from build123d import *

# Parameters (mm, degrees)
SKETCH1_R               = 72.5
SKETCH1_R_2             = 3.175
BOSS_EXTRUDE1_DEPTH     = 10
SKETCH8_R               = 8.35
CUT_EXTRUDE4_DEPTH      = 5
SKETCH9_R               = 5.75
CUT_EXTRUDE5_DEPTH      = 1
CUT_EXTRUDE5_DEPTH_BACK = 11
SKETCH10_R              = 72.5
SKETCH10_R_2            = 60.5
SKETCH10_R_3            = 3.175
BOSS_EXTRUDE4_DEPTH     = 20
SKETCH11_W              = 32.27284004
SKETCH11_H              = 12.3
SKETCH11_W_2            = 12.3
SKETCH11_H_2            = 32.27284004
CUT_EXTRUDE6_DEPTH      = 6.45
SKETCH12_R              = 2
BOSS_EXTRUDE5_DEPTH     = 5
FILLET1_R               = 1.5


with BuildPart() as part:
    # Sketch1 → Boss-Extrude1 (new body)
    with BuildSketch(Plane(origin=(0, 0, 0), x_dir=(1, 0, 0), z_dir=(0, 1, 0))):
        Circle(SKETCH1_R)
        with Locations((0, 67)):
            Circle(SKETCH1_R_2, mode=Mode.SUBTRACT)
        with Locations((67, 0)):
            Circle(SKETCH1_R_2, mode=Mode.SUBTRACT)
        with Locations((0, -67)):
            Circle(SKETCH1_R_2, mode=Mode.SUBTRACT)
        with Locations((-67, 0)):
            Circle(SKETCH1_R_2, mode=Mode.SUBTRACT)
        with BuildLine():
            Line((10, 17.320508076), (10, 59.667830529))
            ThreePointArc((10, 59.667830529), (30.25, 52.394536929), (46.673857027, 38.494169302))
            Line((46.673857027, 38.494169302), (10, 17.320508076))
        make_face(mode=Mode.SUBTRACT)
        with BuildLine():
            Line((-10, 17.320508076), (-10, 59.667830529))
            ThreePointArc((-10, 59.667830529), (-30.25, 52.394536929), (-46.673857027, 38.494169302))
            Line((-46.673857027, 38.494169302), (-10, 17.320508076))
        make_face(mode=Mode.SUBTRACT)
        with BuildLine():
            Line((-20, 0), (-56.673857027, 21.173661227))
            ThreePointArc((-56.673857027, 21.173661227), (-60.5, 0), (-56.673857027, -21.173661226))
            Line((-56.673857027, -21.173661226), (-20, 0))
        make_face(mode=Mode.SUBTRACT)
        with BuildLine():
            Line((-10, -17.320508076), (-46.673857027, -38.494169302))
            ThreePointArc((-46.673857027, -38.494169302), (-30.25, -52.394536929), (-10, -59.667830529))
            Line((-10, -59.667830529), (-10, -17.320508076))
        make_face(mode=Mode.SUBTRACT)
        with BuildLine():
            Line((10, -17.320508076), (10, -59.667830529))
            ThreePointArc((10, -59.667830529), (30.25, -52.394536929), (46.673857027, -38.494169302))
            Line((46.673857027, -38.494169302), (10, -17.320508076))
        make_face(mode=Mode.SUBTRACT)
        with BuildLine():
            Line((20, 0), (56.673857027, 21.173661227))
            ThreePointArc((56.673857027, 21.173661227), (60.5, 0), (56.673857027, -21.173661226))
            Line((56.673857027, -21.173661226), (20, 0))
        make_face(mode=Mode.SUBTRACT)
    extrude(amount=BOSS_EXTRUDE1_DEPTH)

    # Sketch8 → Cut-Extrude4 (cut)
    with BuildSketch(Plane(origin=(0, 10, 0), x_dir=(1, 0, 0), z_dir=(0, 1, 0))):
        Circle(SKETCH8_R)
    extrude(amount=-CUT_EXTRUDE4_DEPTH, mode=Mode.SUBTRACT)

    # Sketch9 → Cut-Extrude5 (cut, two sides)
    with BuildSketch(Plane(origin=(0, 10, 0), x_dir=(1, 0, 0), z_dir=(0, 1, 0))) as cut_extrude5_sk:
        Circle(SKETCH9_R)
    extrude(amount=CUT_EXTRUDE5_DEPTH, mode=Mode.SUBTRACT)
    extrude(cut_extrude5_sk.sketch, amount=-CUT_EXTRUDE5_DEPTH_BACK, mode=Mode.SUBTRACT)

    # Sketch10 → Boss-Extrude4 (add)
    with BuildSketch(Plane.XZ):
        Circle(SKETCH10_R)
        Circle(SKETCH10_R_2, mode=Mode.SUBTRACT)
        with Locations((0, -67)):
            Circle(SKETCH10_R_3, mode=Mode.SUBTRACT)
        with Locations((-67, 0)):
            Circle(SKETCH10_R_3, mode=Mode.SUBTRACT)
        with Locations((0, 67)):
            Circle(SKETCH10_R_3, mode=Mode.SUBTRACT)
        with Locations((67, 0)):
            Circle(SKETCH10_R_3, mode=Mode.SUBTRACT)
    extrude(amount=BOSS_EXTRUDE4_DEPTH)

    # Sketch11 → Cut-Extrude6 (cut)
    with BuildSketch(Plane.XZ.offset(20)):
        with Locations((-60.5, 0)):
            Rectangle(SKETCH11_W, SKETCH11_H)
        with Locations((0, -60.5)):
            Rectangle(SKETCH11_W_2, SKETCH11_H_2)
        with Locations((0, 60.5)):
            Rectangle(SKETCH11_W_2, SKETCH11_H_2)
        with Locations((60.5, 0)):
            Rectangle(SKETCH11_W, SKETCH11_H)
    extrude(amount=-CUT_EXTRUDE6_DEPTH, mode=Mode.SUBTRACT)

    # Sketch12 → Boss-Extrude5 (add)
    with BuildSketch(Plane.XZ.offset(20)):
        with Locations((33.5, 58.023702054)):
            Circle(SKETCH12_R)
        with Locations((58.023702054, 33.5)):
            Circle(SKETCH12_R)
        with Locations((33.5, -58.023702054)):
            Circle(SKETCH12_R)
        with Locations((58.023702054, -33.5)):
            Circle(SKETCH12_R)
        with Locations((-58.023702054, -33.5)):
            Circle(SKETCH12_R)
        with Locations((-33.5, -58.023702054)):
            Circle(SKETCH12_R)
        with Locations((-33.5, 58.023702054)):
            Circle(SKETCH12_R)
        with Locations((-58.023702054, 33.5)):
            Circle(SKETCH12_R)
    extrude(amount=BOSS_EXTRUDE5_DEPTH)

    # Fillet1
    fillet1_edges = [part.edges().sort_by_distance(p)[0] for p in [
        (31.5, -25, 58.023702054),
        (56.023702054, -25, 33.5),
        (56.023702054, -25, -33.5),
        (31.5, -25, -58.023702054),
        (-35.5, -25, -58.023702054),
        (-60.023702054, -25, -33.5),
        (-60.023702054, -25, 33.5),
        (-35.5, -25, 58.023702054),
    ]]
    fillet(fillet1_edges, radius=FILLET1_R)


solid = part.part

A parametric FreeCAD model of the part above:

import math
import FreeCAD as App
import Part
import Sketcher
from FreeCAD import Vector
Q = App.Units.Quantity


def edges_at(feature, points):
    """Names of the edges that pass closest to the given points."""
    edges = feature.Shape.Edges
    near = lambda p: min(range(len(edges)), key=lambda i: edges[i].distToShape(Part.Vertex(*p))[0])
    return sorted({f"Edge{near(p) + 1}" for p in points})


def add_polygon(sketch, points):
    """Adds a closed chain of lines whose ends are joined by coincident constraints."""
    first, n = sketch.GeometryCount, len(points)
    for a, b in zip(points, points[1:] + points[:1]):
        sketch.addGeometry(Part.LineSegment(App.Vector(*a, 0), App.Vector(*b, 0)), False)
    for i in range(n):
        sketch.addConstraint(Sketcher.Constraint("Coincident", first + i, 2, first + (i + 1) % n, 1))

doc = App.newDocument("Part")
body = doc.addObject("PartDesign::Body", "Body")

sketch1 = body.newObject("Sketcher::SketchObject", "Sketch")
sketch1.AttachmentSupport = (doc.getObject("XZ_Plane"), [""])
sketch1.MapMode = "FlatFace"
sketch1.addGeometry([
    Part.Circle(Vector(0, 0, 0), Vector(0, 0, 1), 72.5),
    Part.LineSegment(Vector(-46.7, 38.5, 0), Vector(-10, 17.3, 0)),
    Part.LineSegment(Vector(-10, 17.3, 0), Vector(-10, 59.7, 0)),
    Part.ArcOfCircle(Part.Circle(Vector(0, 0, 0), Vector(0, 0, 1), 60.5), math.radians(100), math.radians(140)),
    Part.Circle(Vector(0, 67, 0), Vector(0, 0, 1), 3.2),
    Part.LineSegment(Vector(10, 59.7, 0), Vector(10, 17.3, 0)),
    Part.LineSegment(Vector(10, 17.3, 0), Vector(46.7, 38.5, 0)),
    Part.ArcOfCircle(Part.Circle(Vector(0, 0, 0), Vector(0, 0, 1), 60.5), math.radians(40), math.radians(80)),
    Part.Circle(Vector(-67, 0, 0), Vector(0, 0, 1), 3.2),
    Part.LineSegment(Vector(-56.7, -21.2, 0), Vector(-20, 0, 0)),
    Part.LineSegment(Vector(-20, 0, 0), Vector(-56.7, 21.2, 0)),
    Part.ArcOfCircle(Part.Circle(Vector(0, 0, 0), Vector(0, 0, 1), 60.5), math.radians(160), math.radians(200)),
    Part.LineSegment(Vector(-10, -59.7, 0), Vector(-10, -17.3, 0)),
    Part.LineSegment(Vector(-10, -17.3, 0), Vector(-46.7, -38.5, 0)),
    Part.ArcOfCircle(Part.Circle(Vector(0, 0, 0), Vector(0, 0, 1), 60.5), math.radians(-140), math.radians(-100)),
    Part.LineSegment(Vector(56.7, 21.2, 0), Vector(20, 0, 0)),
    Part.LineSegment(Vector(20, 0, 0), Vector(56.7, -21.2, 0)),
    Part.ArcOfCircle(Part.Circle(Vector(0, 0, 0), Vector(0, 0, 1), 60.5), math.radians(-20), math.radians(20)),
    Part.Circle(Vector(67, 0, 0), Vector(0, 0, 1), 3.2),
    Part.LineSegment(Vector(46.7, -38.5, 0), Vector(10, -17.3, 0)),
    Part.LineSegment(Vector(10, -17.3, 0), Vector(10, -59.7, 0)),
    Part.ArcOfCircle(Part.Circle(Vector(0, 0, 0), Vector(0, 0, 1), 60.5), math.radians(-80), math.radians(-40)),
    Part.Circle(Vector(0, -67, 0), Vector(0, 0, 1), 3.2),
], False)
sketch1.addConstraint([
    Sketcher.Constraint("Coincident", 1, 2, 2, 1),
    Sketcher.Constraint("Coincident", 2, 2, 3, 1),
    Sketcher.Constraint("Coincident", 3, 2, 1, 1),
    Sketcher.Constraint("Coincident", 5, 2, 6, 1),
    Sketcher.Constraint("Coincident", 6, 2, 7, 1),
    Sketcher.Constraint("Coincident", 7, 2, 5, 1),
    Sketcher.Constraint("Coincident", 9, 2, 10, 1),
    Sketcher.Constraint("Coincident", 10, 2, 11, 1),
    Sketcher.Constraint("Coincident", 11, 2, 9, 1),
    Sketcher.Constraint("Coincident", 12, 2, 13, 1),
    Sketcher.Constraint("Coincident", 13, 2, 14, 1),
    Sketcher.Constraint("Coincident", 14, 2, 12, 1),
    Sketcher.Constraint("Coincident", 15, 2, 16, 1),
    Sketcher.Constraint("Coincident", 16, 2, 17, 1),
    Sketcher.Constraint("Coincident", 17, 2, 15, 1),
    Sketcher.Constraint("Coincident", 19, 2, 20, 1),
    Sketcher.Constraint("Coincident", 20, 2, 21, 1),
    Sketcher.Constraint("Coincident", 21, 2, 19, 1),
    Sketcher.Constraint("Vertical", 2),
    Sketcher.Constraint("Vertical", 5),
    Sketcher.Constraint("Vertical", 12),
    Sketcher.Constraint("Vertical", 20),
    Sketcher.Constraint("Coincident", 0, 3, -1, 1),
    Sketcher.Constraint("Coincident", 3, 3, -1, 1),
    Sketcher.Constraint("Coincident", 7, 3, -1, 1),
    Sketcher.Constraint("Coincident", 11, 3, -1, 1),
    Sketcher.Constraint("Coincident", 14, 3, -1, 1),
    Sketcher.Constraint("Coincident", 17, 3, -1, 1),
    Sketcher.Constraint("Coincident", 21, 3, -1, 1),
    Sketcher.Constraint("Equal", 3, 7),
    Sketcher.Constraint("Equal", 4, 8),
    Sketcher.Constraint("Equal", 7, 11),
    Sketcher.Constraint("Equal", 11, 14),
    Sketcher.Constraint("Equal", 14, 17),
    Sketcher.Constraint("Equal", 8, 18),
    Sketcher.Constraint("Equal", 17, 21),
    Sketcher.Constraint("Equal", 18, 22),
    Sketcher.Constraint("Symmetric", 8, 3, 18, 3, -1, 1),
    Sketcher.Constraint("Symmetric", 4, 3, 22, 3, -1, 1),
    Sketcher.Constraint("Symmetric", 5, 2, 12, 2, -1, 1),
    Sketcher.Constraint("Symmetric", 9, 2, 15, 2, -1, 1),
    Sketcher.Constraint("Symmetric", 1, 2, 19, 2, -1, 1),
    Sketcher.Constraint("Symmetric", 1, 2, 5, 2, -2),
    Sketcher.Constraint("PointOnObject", 4, 3, -2),
    Sketcher.Constraint("PointOnObject", 8, 3, -1),
    Sketcher.Constraint("PointOnObject", 9, 2, -1),
    Sketcher.Constraint("Parallel", 6, 9),
    Sketcher.Constraint("Parallel", 1, 10),
    Sketcher.Constraint("Parallel", 9, 13),
    Sketcher.Constraint("Parallel", 13, 15),
    Sketcher.Constraint("Parallel", 10, 16),
    Sketcher.Constraint("Parallel", 16, 19),
    Sketcher.Constraint("Horizontal", 3, 2, 6, 2),
    Sketcher.Constraint("Equal", 6, 9),
    Sketcher.Constraint("Diameter", 0, Q("145 mm")),
    Sketcher.Constraint("Radius", 3, Q("60.5 mm")),
    Sketcher.Constraint("Diameter", 4, Q("6.35 mm")),
    Sketcher.Constraint("Angle", 1, Q("-30 deg")),
    Sketcher.Constraint("DistanceY", -1, 1, 4, 3, Q("67 mm")),
    Sketcher.Constraint("DistanceX", 8, 3, -1, 1, Q("67 mm")),
    Sketcher.Constraint("DistanceX", 1, 2, -1, 1, Q("10 mm")),
    Sketcher.Constraint("DistanceX", 9, 2, -1, 1, Q("20 mm")),
])
pad1 = body.newObject("PartDesign::Pad", "Pad")
pad1.Profile = sketch1
pad1.Length = 10
pad1.Reversed = True

sketch2 = body.newObject("Sketcher::SketchObject", "Sketch001")
sketch2.AttachmentSupport = (doc.getObject("XZ_Plane"), [""])
sketch2.MapMode = "FlatFace"
sketch2.AttachmentOffset = App.Placement(Vector(0, 0, -10), App.Rotation())
sketch2.addGeometry(Part.Circle(Vector(0, 0, 0), Vector(0, 0, 1), 8), False)
sketch2.addConstraint([
    Sketcher.Constraint("Coincident", 0, 3, -1, 1),
    Sketcher.Constraint("Diameter", 0, Q("16.7 mm")),
])
pocket1 = body.newObject("PartDesign::Pocket", "Pocket")
pocket1.Profile = sketch2
pocket1.Length = 5
pocket1.Reversed = True

sketch3 = body.newObject("Sketcher::SketchObject", "Sketch002")
sketch3.AttachmentSupport = (doc.getObject("XZ_Plane"), [""])
sketch3.MapMode = "FlatFace"
sketch3.AttachmentOffset = App.Placement(Vector(0, 0, -10), App.Rotation())
sketch3.addGeometry(Part.Circle(Vector(0, 0, 0), Vector(0, 0, 1), 6), False)
sketch3.addConstraint([
    Sketcher.Constraint("Coincident", 0, 3, -1, 1),
    Sketcher.Constraint("Diameter", 0, Q("11.5 mm")),
])
pocket2 = body.newObject("PartDesign::Pocket", "Pocket001")
pocket2.Profile = sketch3
pocket2.Type = "ThroughAll"
pocket2.Midplane = True

sketch4 = body.newObject("Sketcher::SketchObject", "Sketch003")
sketch4.AttachmentSupport = (doc.getObject("XZ_Plane"), [""])
sketch4.MapMode = "FlatFace"
sketch4.addGeometry([
    Part.Circle(Vector(0, 0, 0), Vector(0, 0, 1), 72.5),
    Part.Circle(Vector(0, -67, 0), Vector(0, 0, 1), 3.2),
    Part.Circle(Vector(0, 0, 0), Vector(0, 0, 1), 60.5),
    Part.Circle(Vector(-67, 0, 0), Vector(0, 0, 1), 3.2),
    Part.Circle(Vector(67, 0, 0), Vector(0, 0, 1), 3.2),
    Part.Circle(Vector(0, 67, 0), Vector(0, 0, 1), 3.2),
], False)
sketch4.addConstraint([
    Sketcher.Constraint("Coincident", 0, 3, -1, 1),
    Sketcher.Constraint("Coincident", 2, 3, -1, 1),
    Sketcher.Constraint("Equal", 1, 3),
    Sketcher.Constraint("Equal", 3, 4),
    Sketcher.Constraint("Equal", 4, 5),
    Sketcher.Constraint("Symmetric", 3, 3, 4, 3, -1, 1),
    Sketcher.Constraint("Symmetric", 1, 3, 5, 3, -1, 1),
    Sketcher.Constraint("PointOnObject", 1, 3, -2),
    Sketcher.Constraint("PointOnObject", 3, 3, -1),
    Sketcher.Constraint("Diameter", 0, Q("145 mm")),
    Sketcher.Constraint("Diameter", 2, Q("121 mm")),
    Sketcher.Constraint("Diameter", 1, Q("6.35 mm")),
    Sketcher.Constraint("DistanceY", 1, 3, -1, 1, Q("67 mm")),
    Sketcher.Constraint("DistanceX", 3, 3, -1, 1, Q("67 mm")),
])
pad2 = body.newObject("PartDesign::Pad", "Pad001")
pad2.Profile = sketch4
pad2.Length = 20

sketch5 = body.newObject("Sketcher::SketchObject", "Sketch004")
sketch5.AttachmentSupport = (doc.getObject("XZ_Plane"), [""])
sketch5.MapMode = "FlatFace"
sketch5.AttachmentOffset = App.Placement(Vector(0, 0, 20), App.Rotation())
add_polygon(sketch5, [(-77, 6), (-77, -6), (-44, -6), (-44, 6)])
add_polygon(sketch5, [(-6, -44), (-6, -77), (6, -77), (6, -44)])
add_polygon(sketch5, [(-6, 77), (-6, 44), (6, 44), (6, 77)])
add_polygon(sketch5, [(44, 6), (44, -6), (77, -6), (77, 6)])
sketch5.addConstraint([
    Sketcher.Constraint("Vertical", 0),
    Sketcher.Constraint("Horizontal", 1),
    Sketcher.Constraint("Vertical", 2),
    Sketcher.Constraint("Horizontal", 3),
    Sketcher.Constraint("Vertical", 4),
    Sketcher.Constraint("Horizontal", 5),
    Sketcher.Constraint("Vertical", 6),
    Sketcher.Constraint("Horizontal", 7),
    Sketcher.Constraint("Vertical", 8),
    Sketcher.Constraint("Horizontal", 9),
    Sketcher.Constraint("Vertical", 10),
    Sketcher.Constraint("Horizontal", 11),
    Sketcher.Constraint("Vertical", 12),
    Sketcher.Constraint("Horizontal", 13),
    Sketcher.Constraint("Vertical", 14),
    Sketcher.Constraint("Horizontal", 15),
    Sketcher.Constraint("Symmetric", 6, 2, 8, 2, -1, 1),
    Sketcher.Constraint("Symmetric", 4, 2, 10, 2, -1, 1),
    Sketcher.Constraint("Symmetric", 2, 2, 12, 2, -1, 1),
    Sketcher.Constraint("Symmetric", 0, 2, 14, 2, -1, 1),
    Sketcher.Constraint("Horizontal", 1, 2, 12, 2),
    Sketcher.Constraint("Vertical", 7, 2, 8, 2),
    Sketcher.Constraint("Equal", 11, 0),
    Sketcher.Constraint("Equal", 15, 4),
    Sketcher.Constraint("DistanceX", 5, 1, 5, 2, Q("12.3 mm")),
    Sketcher.Constraint("DistanceX", 1, 1, 1, 2, Q("32.27284 mm")),
    Sketcher.Constraint("DistanceX", 0, 2, -1, 1, Q("76.63642 mm")),
    Sketcher.Constraint("DistanceY", 4, 2, -1, 1, Q("76.63642 mm")),
])
pocket3 = body.newObject("PartDesign::Pocket", "Pocket002")
pocket3.Profile = sketch5
pocket3.Length = 6.45

sketch6 = body.newObject("Sketcher::SketchObject", "Sketch005")
sketch6.AttachmentSupport = (doc.getObject("XZ_Plane"), [""])
sketch6.MapMode = "FlatFace"
sketch6.AttachmentOffset = App.Placement(Vector(0, 0, 20), App.Rotation())
sketch6.addGeometry([
    Part.Circle(Vector(33.5, 58, 0), Vector(0, 0, 1), 2),
    Part.Circle(Vector(58, 33.5, 0), Vector(0, 0, 1), 2),
    Part.Circle(Vector(33.5, -58, 0), Vector(0, 0, 1), 2),
    Part.Circle(Vector(58, -33.5, 0), Vector(0, 0, 1), 2),
    Part.Circle(Vector(-58, -33.5, 0), Vector(0, 0, 1), 2),
    Part.Circle(Vector(-33.5, -58, 0), Vector(0, 0, 1), 2),
    Part.Circle(Vector(-33.5, 58, 0), Vector(0, 0, 1), 2),
    Part.Circle(Vector(-58, 33.5, 0), Vector(0, 0, 1), 2),
], False)
sketch6.addConstraint([
    Sketcher.Constraint("Equal", 0, 1),
    Sketcher.Constraint("Equal", 1, 2),
    Sketcher.Constraint("Equal", 2, 3),
    Sketcher.Constraint("Equal", 3, 4),
    Sketcher.Constraint("Equal", 4, 5),
    Sketcher.Constraint("Equal", 5, 6),
    Sketcher.Constraint("Equal", 6, 7),
    Sketcher.Constraint("Symmetric", 1, 3, 4, 3, -1, 1),
    Sketcher.Constraint("Symmetric", 0, 3, 5, 3, -1, 1),
    Sketcher.Constraint("Symmetric", 2, 3, 6, 3, -1, 1),
    Sketcher.Constraint("Symmetric", 3, 3, 7, 3, -1, 1),
    Sketcher.Constraint("Symmetric", 3, 3, 4, 3, -2),
    Sketcher.Constraint("Symmetric", 2, 3, 5, 3, -2),
    Sketcher.Constraint("Diameter", 0, Q("4 mm")),
    Sketcher.Constraint("DistanceY", 3, 3, 1, 3, Q("67 mm")),
    Sketcher.Constraint("DistanceX", 5, 3, 2, 3, Q("67 mm")),
    Sketcher.Constraint("DistanceY", -1, 1, 0, 3, Q("58.023702 mm")),
    Sketcher.Constraint("DistanceX", -1, 1, 1, 3, Q("58.023702 mm")),
])
pad3 = body.newObject("PartDesign::Pad", "Pad002")
pad3.Profile = sketch6
pad3.Length = 5
doc.recompute()

fillet = body.newObject("PartDesign::Fillet", "Fillet")
fillet.Base = (pad3, edges_at(pad3, [
    (31.5, -25, 58.024),
    (56.024, -25, 33.5),
    (56.024, -25, -33.5),
    (31.5, -25, -58.024),
    (-35.5, -25, -58.024),
    (-60.024, -25, -33.5),
    (-60.024, -25, 33.5),
    (-35.5, -25, 58.024),
]))
fillet.Radius = 1.5

doc.recompute()
